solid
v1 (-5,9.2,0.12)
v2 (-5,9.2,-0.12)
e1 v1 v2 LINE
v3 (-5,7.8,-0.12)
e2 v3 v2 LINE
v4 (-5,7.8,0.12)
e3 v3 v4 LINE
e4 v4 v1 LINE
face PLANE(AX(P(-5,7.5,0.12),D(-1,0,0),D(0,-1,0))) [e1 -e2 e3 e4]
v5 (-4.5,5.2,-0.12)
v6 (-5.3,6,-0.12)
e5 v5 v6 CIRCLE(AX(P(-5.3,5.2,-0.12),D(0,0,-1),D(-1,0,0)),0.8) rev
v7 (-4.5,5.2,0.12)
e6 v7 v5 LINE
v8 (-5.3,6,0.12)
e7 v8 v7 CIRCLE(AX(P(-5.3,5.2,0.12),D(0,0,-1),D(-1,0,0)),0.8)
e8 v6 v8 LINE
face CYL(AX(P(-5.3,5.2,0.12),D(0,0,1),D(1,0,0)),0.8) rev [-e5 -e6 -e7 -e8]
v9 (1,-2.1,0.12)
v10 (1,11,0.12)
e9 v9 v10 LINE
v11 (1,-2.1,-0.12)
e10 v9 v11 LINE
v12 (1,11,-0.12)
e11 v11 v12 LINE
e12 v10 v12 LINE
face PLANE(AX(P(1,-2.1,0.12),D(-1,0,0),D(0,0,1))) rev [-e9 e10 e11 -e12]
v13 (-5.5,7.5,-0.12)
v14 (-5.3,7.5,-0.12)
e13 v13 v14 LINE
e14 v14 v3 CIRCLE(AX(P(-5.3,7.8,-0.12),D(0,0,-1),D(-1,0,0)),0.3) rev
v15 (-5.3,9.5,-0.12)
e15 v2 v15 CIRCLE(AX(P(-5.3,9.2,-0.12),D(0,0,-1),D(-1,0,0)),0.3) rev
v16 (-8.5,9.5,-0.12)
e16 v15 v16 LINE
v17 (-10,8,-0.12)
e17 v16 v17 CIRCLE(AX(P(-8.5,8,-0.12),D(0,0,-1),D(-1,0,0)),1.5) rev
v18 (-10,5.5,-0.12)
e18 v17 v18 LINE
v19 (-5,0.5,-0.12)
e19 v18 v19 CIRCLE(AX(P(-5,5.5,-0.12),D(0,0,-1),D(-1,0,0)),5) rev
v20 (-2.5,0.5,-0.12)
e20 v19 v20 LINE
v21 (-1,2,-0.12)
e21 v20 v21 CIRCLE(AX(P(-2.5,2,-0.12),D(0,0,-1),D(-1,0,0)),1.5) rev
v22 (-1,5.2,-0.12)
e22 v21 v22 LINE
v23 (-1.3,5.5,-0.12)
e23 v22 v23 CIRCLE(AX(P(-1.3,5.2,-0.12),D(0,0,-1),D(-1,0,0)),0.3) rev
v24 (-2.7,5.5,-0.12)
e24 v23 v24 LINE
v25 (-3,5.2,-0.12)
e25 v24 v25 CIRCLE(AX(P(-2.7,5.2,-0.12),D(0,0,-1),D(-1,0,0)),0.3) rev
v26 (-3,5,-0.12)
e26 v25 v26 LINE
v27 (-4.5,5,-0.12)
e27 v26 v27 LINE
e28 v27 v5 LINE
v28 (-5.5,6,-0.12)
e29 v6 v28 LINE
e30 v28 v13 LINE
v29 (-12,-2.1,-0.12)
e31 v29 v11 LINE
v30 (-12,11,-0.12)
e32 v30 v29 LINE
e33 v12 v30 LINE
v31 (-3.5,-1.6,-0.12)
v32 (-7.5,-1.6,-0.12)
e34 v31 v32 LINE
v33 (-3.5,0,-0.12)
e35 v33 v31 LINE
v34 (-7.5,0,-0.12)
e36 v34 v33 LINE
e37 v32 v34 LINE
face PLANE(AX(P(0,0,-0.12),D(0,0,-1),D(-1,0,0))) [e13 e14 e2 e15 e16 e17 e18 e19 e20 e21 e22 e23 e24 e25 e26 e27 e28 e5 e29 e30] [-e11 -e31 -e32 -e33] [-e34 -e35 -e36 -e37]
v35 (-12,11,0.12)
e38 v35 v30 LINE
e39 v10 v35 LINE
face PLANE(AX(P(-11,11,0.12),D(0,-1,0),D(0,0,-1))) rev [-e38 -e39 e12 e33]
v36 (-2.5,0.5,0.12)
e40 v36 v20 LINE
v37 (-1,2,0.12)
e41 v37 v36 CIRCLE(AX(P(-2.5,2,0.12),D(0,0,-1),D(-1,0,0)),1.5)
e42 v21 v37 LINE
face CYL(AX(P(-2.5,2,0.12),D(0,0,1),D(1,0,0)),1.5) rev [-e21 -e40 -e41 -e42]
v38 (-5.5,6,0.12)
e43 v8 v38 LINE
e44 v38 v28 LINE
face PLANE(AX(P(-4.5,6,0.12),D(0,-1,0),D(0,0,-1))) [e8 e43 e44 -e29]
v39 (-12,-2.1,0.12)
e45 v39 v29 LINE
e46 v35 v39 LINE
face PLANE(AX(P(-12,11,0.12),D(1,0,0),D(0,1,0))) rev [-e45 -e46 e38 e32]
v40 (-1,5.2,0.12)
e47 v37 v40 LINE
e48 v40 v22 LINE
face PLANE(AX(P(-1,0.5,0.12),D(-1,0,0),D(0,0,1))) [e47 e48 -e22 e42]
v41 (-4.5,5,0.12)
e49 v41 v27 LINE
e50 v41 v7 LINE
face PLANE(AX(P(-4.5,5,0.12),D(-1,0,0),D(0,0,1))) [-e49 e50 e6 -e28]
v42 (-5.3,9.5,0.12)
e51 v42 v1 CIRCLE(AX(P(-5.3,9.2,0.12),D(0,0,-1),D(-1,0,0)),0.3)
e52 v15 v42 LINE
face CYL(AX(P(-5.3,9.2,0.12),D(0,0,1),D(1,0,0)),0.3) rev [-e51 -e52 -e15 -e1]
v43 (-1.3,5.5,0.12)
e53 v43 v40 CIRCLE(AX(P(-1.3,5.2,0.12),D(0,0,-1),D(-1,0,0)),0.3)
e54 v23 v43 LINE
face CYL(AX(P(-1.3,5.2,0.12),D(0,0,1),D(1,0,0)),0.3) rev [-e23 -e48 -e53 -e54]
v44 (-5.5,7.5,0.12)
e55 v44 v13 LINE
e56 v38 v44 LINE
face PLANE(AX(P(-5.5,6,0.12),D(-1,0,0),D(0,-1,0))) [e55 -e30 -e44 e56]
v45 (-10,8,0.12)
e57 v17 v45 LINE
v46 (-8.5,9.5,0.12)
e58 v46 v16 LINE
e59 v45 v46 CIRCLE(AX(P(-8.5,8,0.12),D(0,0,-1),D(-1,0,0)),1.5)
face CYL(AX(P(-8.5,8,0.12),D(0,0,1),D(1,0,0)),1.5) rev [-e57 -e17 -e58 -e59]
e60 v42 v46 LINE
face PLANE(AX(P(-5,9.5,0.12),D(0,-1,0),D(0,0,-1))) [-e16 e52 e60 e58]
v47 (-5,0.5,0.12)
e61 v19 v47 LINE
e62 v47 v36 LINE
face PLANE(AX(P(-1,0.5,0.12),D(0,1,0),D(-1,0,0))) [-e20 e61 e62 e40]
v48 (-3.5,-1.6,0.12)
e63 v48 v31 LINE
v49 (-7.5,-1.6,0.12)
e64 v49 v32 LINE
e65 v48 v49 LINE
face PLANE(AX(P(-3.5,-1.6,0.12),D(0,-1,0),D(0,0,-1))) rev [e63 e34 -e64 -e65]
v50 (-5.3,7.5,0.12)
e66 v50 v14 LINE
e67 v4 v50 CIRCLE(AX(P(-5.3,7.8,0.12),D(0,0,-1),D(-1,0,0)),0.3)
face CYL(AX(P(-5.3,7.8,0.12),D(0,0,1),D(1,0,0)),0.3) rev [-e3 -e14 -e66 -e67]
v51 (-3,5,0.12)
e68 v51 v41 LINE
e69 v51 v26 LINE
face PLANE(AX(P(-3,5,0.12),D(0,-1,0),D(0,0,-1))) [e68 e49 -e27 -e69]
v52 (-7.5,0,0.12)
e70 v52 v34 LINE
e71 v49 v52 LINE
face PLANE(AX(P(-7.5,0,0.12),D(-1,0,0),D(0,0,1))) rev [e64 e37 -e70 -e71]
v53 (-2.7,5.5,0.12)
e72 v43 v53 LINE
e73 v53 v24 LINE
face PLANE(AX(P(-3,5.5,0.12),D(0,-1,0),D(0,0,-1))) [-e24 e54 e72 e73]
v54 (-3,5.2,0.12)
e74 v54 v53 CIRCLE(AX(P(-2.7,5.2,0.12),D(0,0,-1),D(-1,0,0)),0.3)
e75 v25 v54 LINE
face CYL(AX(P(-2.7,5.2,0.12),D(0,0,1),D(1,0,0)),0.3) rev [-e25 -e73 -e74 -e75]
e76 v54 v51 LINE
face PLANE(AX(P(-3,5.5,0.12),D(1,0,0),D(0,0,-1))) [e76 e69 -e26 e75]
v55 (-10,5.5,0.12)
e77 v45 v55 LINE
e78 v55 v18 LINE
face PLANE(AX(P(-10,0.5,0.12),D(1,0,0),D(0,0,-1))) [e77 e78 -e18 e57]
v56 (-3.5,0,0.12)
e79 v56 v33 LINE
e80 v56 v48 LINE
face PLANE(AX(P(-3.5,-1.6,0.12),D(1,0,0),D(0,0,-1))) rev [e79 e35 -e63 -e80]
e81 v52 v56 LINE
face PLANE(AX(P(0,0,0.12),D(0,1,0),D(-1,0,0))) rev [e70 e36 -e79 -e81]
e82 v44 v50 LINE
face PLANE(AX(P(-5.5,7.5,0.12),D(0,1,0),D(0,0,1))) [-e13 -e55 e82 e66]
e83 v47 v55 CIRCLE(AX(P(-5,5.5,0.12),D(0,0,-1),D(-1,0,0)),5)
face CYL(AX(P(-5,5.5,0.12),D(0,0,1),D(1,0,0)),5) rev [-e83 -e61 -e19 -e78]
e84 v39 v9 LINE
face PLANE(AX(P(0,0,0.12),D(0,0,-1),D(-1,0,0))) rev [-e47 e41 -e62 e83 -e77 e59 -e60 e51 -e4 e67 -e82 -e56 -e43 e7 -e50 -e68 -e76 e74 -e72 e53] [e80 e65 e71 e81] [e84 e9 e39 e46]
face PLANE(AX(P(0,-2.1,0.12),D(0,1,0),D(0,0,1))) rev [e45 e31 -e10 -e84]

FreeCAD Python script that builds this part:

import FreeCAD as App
import Part
import Sketcher
from FreeCAD import Vector
Q = App.Units.Quantity


def edges_at(feature, points):
    """Names of the edges that pass closest to the given points."""
    edges = feature.Shape.Edges
    near = lambda p: min(range(len(edges)), key=lambda i: edges[i].distToShape(Part.Vertex(*p))[0])
    return sorted({f"Edge{near(p) + 1}" for p in points})


def add_polygon(sketch, points):
    """Adds a closed chain of lines whose ends are joined by coincident constraints."""
    first, n = sketch.GeometryCount, len(points)
    for a, b in zip(points, points[1:] + points[:1]):
        sketch.addGeometry(Part.LineSegment(App.Vector(*a, 0), App.Vector(*b, 0)), False)
    for i in range(n):
        sketch.addConstraint(Sketcher.Constraint("Coincident", first + i, 2, first + (i + 1) % n, 1))

doc = App.newDocument("Part")
body = doc.addObject("PartDesign::Body", "Body")

# Sketch on XY plane
sketch1 = body.newObject("Sketcher::SketchObject", "Sketch")
sketch1.AttachmentSupport = (doc.getObject("XY_Plane"), [""])
sketch1.MapMode = "FlatFace"
add_polygon(sketch1, [(-11, 0), (0, 0), (0, 11), (-11, 11)])  # lines 0-3
add_polygon(sketch1, [(-1, 0.5), (-10, 0.5), (-10, 9.5), (-5, 9.5), (-5, 7.5), (-5.5, 7.5), (-5.5, 6), (-4.5, 6), (-4.5, 5), (-3, 5), (-3, 5.5), (-1, 5.5)])  # lines 4-15
sketch1.addConstraint([
    Sketcher.Constraint("Horizontal", 0),
    Sketcher.Constraint("Vertical", 1),
    Sketcher.Constraint("Horizontal", 2),
    Sketcher.Constraint("Vertical", 3),
    Sketcher.Constraint("Horizontal", 4),
    Sketcher.Constraint("Vertical", 5),
    Sketcher.Constraint("Horizontal", 6),
    Sketcher.Constraint("Vertical", 7),
    Sketcher.Constraint("Horizontal", 8),
    Sketcher.Constraint("Vertical", 9),
    Sketcher.Constraint("Horizontal", 10),
    Sketcher.Constraint("Vertical", 11),
    Sketcher.Constraint("Horizontal", 12),
    Sketcher.Constraint("Vertical", 13),
    Sketcher.Constraint("Horizontal", 14),
    Sketcher.Constraint("Vertical", 15),
    Sketcher.Constraint("Coincident", 0, 2, -1, 1),
    Sketcher.Constraint("Equal", 2, 1),
    Sketcher.Constraint("Equal", 4, 5),
    Sketcher.Constraint("Equal", 14, 7),
    Sketcher.Constraint("Equal", 12, 9),
    Sketcher.Constraint("Equal", 10, 11),
    Sketcher.Constraint("Equal", 8, 13),
    Sketcher.Constraint("DistanceX", 0, 1, 0, 2, Q("11 mm")),
    Sketcher.Constraint("DistanceX", 4, 2, 4, 1, Q("9 mm")),
    Sketcher.Constraint("DistanceX", 6, 1, 6, 2, Q("5 mm")),
    Sketcher.Constraint("DistanceX", 10, 1, 10, 2, Q("1 mm")),
    Sketcher.Constraint("DistanceX", 14, 1, 14, 2, Q("2 mm")),
    Sketcher.Constraint("DistanceX", 8, 2, 8, 1, Q("0.5 mm")),
    Sketcher.Constraint("DistanceX", 4, 2, -1, 1, Q("10 mm")),
    Sketcher.Constraint("DistanceY", -1, 1, 9, 2, Q("6 mm")),
])
pad1 = body.newObject("PartDesign::Pad", "Pad")
pad1.Profile = sketch1
pad1.Length = 0.24
pad1.Midplane = True
doc.recompute()

fillet = body.newObject("PartDesign::Fillet", "Fillet")
fillet.Base = (pad1, edges_at(pad1, [(-1, 0.5, 0), (-10, 9.5, 0)]))
fillet.Radius = 1.5
doc.recompute()

fillet2 = body.newObject("PartDesign::Fillet", "Fillet001")
fillet2.Base = (fillet, edges_at(fillet, [(-10, 0.5, 0)]))
fillet2.Radius = 5

# Sketch on XY plane
sketch2 = body.newObject("Sketcher::SketchObject", "Sketch001")
sketch2.AttachmentSupport = (doc.getObject("XY_Plane"), [""])
sketch2.MapMode = "FlatFace"
add_polygon(sketch2, [(0, -2.1), (0, 0), (-3.5, 0), (-3.5, -1.6), (-7.5, -1.6), (-7.5, 0), (-11, 0), (-11, -2.1)])  # lines 0-7
sketch2.addConstraint([
    Sketcher.Constraint("Vertical", 0),
    Sketcher.Constraint("Horizontal", 1),
    Sketcher.Constraint("Vertical", 2),
    Sketcher.Constraint("Horizontal", 3),
    Sketcher.Constraint("Vertical", 4),
    Sketcher.Constraint("Horizontal", 5),
    Sketcher.Constraint("Vertical", 6),
    Sketcher.Constraint("Horizontal", 7),
    Sketcher.Constraint("Coincident", 0, 2, -1, 1),
    Sketcher.Constraint("PointOnObject", 4, 2, -1),
    Sketcher.Constraint("Equal", 1, 5),
    Sketcher.Constraint("DistanceX", 3, 2, 3, 1, Q("4 mm")),
    Sketcher.Constraint("DistanceX", 7, 1, 7, 2, Q("11 mm")),
    Sketcher.Constraint("DistanceY", 0, 1, 0, 2, Q("2.1 mm")),
    Sketcher.Constraint("DistanceY", 2, 2, 2, 1, Q("1.6 mm")),
])
pad2 = body.newObject("PartDesign::Pad", "Pad001")
pad2.Profile = sketch2
pad2.Length = 0.24
pad2.Midplane = True

# Sketch on XY plane
sketch3 = body.newObject("Sketcher::SketchObject", "Sketch002")
sketch3.AttachmentSupport = (doc.getObject("XY_Plane"), [""])
sketch3.MapMode = "FlatFace"
add_polygon(sketch3, [(-12, 11), (-12, -2.1), (-11, -2.1), (-11, 11)])  # lines 0-3
add_polygon(sketch3, [(0, 11), (0, -2.1), (1, -2.1), (1, 11)])  # lines 4-7
add_polygon(sketch3, [(-3.440372, 9.766532), (-3.440372, 6.947932), (-0.517379, 6.947932), (-0.517379, 9.766532)])  # lines 8-11
sketch3.addConstraint([
    Sketcher.Constraint("Vertical", 0),
    Sketcher.Constraint("Horizontal", 1),
    Sketcher.Constraint("Vertical", 2),
    Sketcher.Constraint("Horizontal", 3),
    Sketcher.Constraint("Vertical", 4),
    Sketcher.Constraint("Horizontal", 5),
    Sketcher.Constraint("Vertical", 6),
    Sketcher.Constraint("Horizontal", 7),
    Sketcher.Constraint("Vertical", 8),
    Sketcher.Constraint("Horizontal", 9),
    Sketcher.Constraint("Vertical", 10),
    Sketcher.Constraint("Horizontal", 11),
    Sketcher.Constraint("PointOnObject", 4, 2, -2),
    Sketcher.Constraint("Horizontal", 1, 2, 4, 2),
    Sketcher.Constraint("Horizontal", 3, 2, 6, 2),
    Sketcher.Constraint("Equal", 3, 5),
    Sketcher.Constraint("DistanceX", 1, 1, 1, 2, Q("1 mm")),
    Sketcher.Constraint("DistanceY", 0, 2, 0, 1, Q("13.1 mm")),
    Sketcher.Constraint("DistanceX", 0, 2, -1, 1, Q("12 mm")),
    Sketcher.Constraint("DistanceY", -1, 1, 2, 2, Q("11 mm")),
    Sketcher.Constraint("DistanceY", 8, 2, 8, 1, Q("2.8186 mm")),
    Sketcher.Constraint("DistanceX", 9, 1, 9, 2, Q("2.922992 mm")),
    Sketcher.Constraint("DistanceX", 8, 2, -1, 1, Q("3.440372 mm")),
    Sketcher.Constraint("DistanceY", -1, 1, 8, 2, Q("6.947932 mm")),
])
pad3 = body.newObject("PartDesign::Pad", "Pad002")
pad3.Profile = sketch3
pad3.Length = 0.24
pad3.Midplane = True
doc.recompute()

fillet3 = body.newObject("PartDesign::Fillet", "Fillet002")
fillet3.Base = (pad3, edges_at(pad3, [
    (-1, 5.5, 0),
    (-3, 5.5, 0),
    (-5, 7.5, 0),
    (-5, 9.5, 0),
]))
fillet3.Radius = 0.3
doc.recompute()

fillet4 = body.newObject("PartDesign::Fillet", "Fillet003")
fillet4.Base = (fillet3, edges_at(fillet3, [(-4.5, 6, 0)]))
fillet4.Radius = 0.8

doc.recompute()
